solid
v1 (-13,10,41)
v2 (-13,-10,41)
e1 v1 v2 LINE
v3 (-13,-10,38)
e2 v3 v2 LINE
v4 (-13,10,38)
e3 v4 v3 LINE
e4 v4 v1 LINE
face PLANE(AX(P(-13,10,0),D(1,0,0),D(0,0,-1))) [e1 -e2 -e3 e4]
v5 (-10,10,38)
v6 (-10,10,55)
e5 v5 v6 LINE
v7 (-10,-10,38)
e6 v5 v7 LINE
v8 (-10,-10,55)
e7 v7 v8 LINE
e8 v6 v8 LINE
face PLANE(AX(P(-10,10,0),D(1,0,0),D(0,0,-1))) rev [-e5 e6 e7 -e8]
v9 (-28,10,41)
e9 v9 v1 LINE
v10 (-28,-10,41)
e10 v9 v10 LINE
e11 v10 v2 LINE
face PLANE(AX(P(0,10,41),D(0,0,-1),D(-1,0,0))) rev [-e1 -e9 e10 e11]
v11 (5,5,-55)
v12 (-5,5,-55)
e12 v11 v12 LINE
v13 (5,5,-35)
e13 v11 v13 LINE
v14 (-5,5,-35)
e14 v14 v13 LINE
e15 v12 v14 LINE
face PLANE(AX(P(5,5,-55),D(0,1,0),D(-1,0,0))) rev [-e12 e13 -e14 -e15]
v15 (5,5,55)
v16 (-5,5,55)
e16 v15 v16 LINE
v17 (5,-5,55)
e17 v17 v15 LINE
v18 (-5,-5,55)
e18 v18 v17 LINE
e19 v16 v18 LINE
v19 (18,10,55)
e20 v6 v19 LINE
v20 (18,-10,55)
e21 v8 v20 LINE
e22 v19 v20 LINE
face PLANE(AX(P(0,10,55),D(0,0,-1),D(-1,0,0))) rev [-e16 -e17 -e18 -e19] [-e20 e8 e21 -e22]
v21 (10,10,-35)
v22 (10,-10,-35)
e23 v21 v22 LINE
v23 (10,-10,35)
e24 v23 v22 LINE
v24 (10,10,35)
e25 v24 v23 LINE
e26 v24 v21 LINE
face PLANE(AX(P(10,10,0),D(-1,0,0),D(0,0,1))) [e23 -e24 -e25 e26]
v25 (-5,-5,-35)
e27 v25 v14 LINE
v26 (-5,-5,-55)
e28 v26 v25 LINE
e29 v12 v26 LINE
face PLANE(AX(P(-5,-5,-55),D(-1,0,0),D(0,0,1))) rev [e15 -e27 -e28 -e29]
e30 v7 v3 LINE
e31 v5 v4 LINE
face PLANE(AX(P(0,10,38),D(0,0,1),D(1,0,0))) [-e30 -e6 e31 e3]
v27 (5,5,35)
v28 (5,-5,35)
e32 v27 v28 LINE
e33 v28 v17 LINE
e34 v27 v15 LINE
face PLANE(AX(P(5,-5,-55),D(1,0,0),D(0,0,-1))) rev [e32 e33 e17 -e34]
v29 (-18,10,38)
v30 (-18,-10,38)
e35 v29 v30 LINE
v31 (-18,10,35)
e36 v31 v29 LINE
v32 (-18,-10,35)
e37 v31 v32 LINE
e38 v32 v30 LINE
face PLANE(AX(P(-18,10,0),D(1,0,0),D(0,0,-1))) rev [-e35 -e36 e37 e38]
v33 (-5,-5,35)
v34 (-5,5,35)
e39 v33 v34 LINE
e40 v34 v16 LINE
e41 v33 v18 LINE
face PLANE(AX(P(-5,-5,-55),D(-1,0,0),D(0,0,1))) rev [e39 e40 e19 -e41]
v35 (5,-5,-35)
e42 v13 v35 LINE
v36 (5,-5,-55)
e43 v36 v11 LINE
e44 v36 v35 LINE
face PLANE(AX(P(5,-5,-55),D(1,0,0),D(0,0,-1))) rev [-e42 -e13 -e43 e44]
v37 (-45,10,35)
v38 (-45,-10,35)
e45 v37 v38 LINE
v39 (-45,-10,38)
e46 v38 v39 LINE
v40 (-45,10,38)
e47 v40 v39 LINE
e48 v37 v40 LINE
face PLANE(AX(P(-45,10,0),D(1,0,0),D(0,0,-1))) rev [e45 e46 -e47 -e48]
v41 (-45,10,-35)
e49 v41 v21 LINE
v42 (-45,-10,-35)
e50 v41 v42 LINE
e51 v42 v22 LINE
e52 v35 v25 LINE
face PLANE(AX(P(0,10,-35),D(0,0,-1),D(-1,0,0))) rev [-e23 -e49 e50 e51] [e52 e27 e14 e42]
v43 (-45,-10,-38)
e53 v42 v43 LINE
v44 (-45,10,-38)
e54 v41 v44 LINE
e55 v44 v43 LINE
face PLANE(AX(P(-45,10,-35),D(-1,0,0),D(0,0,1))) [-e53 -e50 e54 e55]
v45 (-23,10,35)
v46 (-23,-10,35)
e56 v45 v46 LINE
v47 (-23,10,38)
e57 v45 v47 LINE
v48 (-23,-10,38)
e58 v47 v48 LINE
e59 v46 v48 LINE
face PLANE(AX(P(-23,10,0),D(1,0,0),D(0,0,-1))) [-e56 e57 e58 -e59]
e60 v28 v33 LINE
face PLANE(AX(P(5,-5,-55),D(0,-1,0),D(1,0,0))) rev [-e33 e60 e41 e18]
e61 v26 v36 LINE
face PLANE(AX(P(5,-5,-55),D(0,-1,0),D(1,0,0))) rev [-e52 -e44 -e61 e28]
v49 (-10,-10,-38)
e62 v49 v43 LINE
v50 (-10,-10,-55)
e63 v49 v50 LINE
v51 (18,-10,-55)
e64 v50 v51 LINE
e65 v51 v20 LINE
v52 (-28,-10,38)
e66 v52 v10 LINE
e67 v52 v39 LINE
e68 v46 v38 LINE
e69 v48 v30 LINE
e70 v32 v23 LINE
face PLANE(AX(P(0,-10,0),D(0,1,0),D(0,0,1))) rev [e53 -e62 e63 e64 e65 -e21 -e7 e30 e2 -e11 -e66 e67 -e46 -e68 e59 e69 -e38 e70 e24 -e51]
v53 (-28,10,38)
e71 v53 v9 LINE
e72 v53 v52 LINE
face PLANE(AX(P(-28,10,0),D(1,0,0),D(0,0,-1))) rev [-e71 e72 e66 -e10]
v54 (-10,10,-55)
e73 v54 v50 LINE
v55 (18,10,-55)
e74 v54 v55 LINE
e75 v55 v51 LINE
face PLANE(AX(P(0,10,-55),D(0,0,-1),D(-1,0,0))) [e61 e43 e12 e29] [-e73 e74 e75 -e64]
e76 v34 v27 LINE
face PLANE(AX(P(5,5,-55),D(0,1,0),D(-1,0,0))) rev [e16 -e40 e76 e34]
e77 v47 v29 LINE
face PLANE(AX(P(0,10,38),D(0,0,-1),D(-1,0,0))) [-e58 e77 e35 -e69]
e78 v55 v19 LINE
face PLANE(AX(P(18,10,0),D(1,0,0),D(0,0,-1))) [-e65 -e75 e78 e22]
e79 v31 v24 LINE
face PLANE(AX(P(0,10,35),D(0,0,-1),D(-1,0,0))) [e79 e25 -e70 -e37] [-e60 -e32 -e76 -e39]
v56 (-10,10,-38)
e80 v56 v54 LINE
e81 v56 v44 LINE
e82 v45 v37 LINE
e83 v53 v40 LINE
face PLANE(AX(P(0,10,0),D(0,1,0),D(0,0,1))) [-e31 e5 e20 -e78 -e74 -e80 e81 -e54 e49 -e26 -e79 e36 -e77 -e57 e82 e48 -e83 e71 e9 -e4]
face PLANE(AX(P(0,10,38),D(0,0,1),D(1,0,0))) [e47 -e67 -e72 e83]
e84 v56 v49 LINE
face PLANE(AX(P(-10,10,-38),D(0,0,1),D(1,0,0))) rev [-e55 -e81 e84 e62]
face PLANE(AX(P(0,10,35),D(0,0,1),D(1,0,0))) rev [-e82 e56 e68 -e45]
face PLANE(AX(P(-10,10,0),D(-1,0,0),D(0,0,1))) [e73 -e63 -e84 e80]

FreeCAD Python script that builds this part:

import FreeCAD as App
import Part
import Sketcher

doc = App.newDocument("Part")
body = doc.addObject("PartDesign::Body", "Body")

# Sketch on XZ plane
sketch1 = doc.addObject("Sketcher::SketchObject", "Sketch")
body.addObject(sketch1)
sketch1.AttachmentSupport = (doc.XZ_Plane, [""])
sketch1.MapMode = "FlatFace"
sketch1.addGeometry(Part.LineSegment(App.Vector(18, 55, 0), App.Vector(18, -55, 0)), False)
sketch1.addGeometry(Part.LineSegment(App.Vector(18, -55, 0), App.Vector(-10, -55, 0)), False)
sketch1.addGeometry(Part.LineSegment(App.Vector(-10, -55, 0), App.Vector(-10, -35, 0)), False)
sketch1.addGeometry(Part.LineSegment(App.Vector(-10, -35, 0), App.Vector(10, -35, 0)), False)
sketch1.addGeometry(Part.LineSegment(App.Vector(10, -35, 0), App.Vector(10, 35, 0)), False)
sketch1.addGeometry(Part.LineSegment(App.Vector(10, 35, 0), App.Vector(-10, 35, 0)), False)
sketch1.addGeometry(Part.LineSegment(App.Vector(-10, 35, 0), App.Vector(-10, 55, 0)), False)
sketch1.addGeometry(Part.LineSegment(App.Vector(-10, 55, 0), App.Vector(18, 55, 0)), False)
sketch1.addConstraint(Sketcher.Constraint("Coincident", 0, 2, 1, 1))
sketch1.addConstraint(Sketcher.Constraint("Coincident", 1, 2, 2, 1))
sketch1.addConstraint(Sketcher.Constraint("Coincident", 2, 2, 3, 1))
sketch1.addConstraint(Sketcher.Constraint("Coincident", 3, 2, 4, 1))
sketch1.addConstraint(Sketcher.Constraint("Coincident", 4, 2, 5, 1))
sketch1.addConstraint(Sketcher.Constraint("Coincident", 5, 2, 6, 1))
sketch1.addConstraint(Sketcher.Constraint("Coincident", 6, 2, 7, 1))
sketch1.addConstraint(Sketcher.Constraint("Coincident", 7, 2, 0, 1))
sketch1.addConstraint(Sketcher.Constraint("Vertical", 0))
sketch1.addConstraint(Sketcher.Constraint("Horizontal", 1))
sketch1.addConstraint(Sketcher.Constraint("Vertical", 2))
sketch1.addConstraint(Sketcher.Constraint("Horizontal", 3))
sketch1.addConstraint(Sketcher.Constraint("Vertical", 4))
sketch1.addConstraint(Sketcher.Constraint("Horizontal", 5))
sketch1.addConstraint(Sketcher.Constraint("Vertical", 6))
sketch1.addConstraint(Sketcher.Constraint("Horizontal", 7))
sketch1.addConstraint(Sketcher.Constraint("Symmetric", 2, 2, 4, 2, -1, 1))
sketch1.addConstraint(Sketcher.Constraint("Symmetric", 1, 2, 6, 2, -1))
sketch1.addConstraint(Sketcher.Constraint("Equal", 5, 2))
sketch1.addConstraint(Sketcher.Constraint("DistanceX", 1, 2, 1, 1, 28.0))
sketch1.addConstraint(Sketcher.Constraint("DistanceX", 3, 1, 3, 2, 20.0))
sketch1.addConstraint(Sketcher.Constraint("DistanceY", 0, 2, 0, 1, 110.0))
pad1 = doc.addObject("PartDesign::Pad", "Pad")
body.addObject(pad1)
pad1.Profile = sketch1
pad1.Length = 20
pad1.Midplane = True

# Sketch on XY plane
sketch2 = doc.addObject("Sketcher::SketchObject", "Sketch001")
body.addObject(sketch2)
sketch2.AttachmentSupport = (doc.XY_Plane, [""])
sketch2.MapMode = "FlatFace"
sketch2.AttachmentOffset = App.Placement(App.Vector(0, 0, 55), App.Rotation())
sketch2.addGeometry(Part.LineSegment(App.Vector(-5, 5, 0), App.Vector(-5, -5, 0)), False)
sketch2.addGeometry(Part.LineSegment(App.Vector(-5, -5, 0), App.Vector(5, -5, 0)), False)
sketch2.addGeometry(Part.LineSegment(App.Vector(5, -5, 0), App.Vector(5, 5, 0)), False)
sketch2.addGeometry(Part.LineSegment(App.Vector(5, 5, 0), App.Vector(-5, 5, 0)), False)
sketch2.addConstraint(Sketcher.Constraint("Coincident", 0, 2, 1, 1))
sketch2.addConstraint(Sketcher.Constraint("Coincident", 1, 2, 2, 1))
sketch2.addConstraint(Sketcher.Constraint("Coincident", 2, 2, 3, 1))
sketch2.addConstraint(Sketcher.Constraint("Coincident", 3, 2, 0, 1))
sketch2.addConstraint(Sketcher.Constraint("Vertical", 0))
sketch2.addConstraint(Sketcher.Constraint("Horizontal", 1))
sketch2.addConstraint(Sketcher.Constraint("Vertical", 2))
sketch2.addConstraint(Sketcher.Constraint("Horizontal", 3))
sketch2.addConstraint(Sketcher.Constraint("Symmetric", 0, 2, 2, 2, -1, 1))
sketch2.addConstraint(Sketcher.Constraint("Equal", 3, 0))
sketch2.addConstraint(Sketcher.Constraint("DistanceX", 1, 1, 1, 2, 10.0))
pocket1 = doc.addObject("PartDesign::Pocket", "Pocket")
body.addObject(pocket1)
pocket1.Profile = sketch2
pocket1.Type = "ThroughAll"

# Sketch on XZ plane
sketch3 = doc.addObject("Sketcher::SketchObject", "Sketch002")
body.addObject(sketch3)
sketch3.AttachmentSupport = (doc.XZ_Plane, [""])
sketch3.MapMode = "FlatFace"
sketch3.addGeometry(Part.LineSegment(App.Vector(-10, 38, 0), App.Vector(-10, 35, 0)), False)
sketch3.addGeometry(Part.LineSegment(App.Vector(-10, 35, 0), App.Vector(-18, 35, 0)), False)
sketch3.addGeometry(Part.LineSegment(App.Vector(-18, 35, 0), App.Vector(-18, 38, 0)), False)
sketch3.addGeometry(Part.LineSegment(App.Vector(-18, 38, 0), App.Vector(-23, 38, 0)), False)
sketch3.addGeometry(Part.LineSegment(App.Vector(-23, 38, 0), App.Vector(-23, 35, 0)), False)
sketch3.addGeometry(Part.LineSegment(App.Vector(-23, 35, 0), App.Vector(-45, 35, 0)), False)
sketch3.addGeometry(Part.LineSegment(App.Vector(-45, 35, 0), App.Vector(-45, 38, 0)), False)
sketch3.addGeometry(Part.LineSegment(App.Vector(-45, 38, 0), App.Vector(-28, 38, 0)), False)
sketch3.addGeometry(Part.LineSegment(App.Vector(-28, 38, 0), App.Vector(-28, 41, 0)), False)
sketch3.addGeometry(Part.LineSegment(App.Vector(-28, 41, 0), App.Vector(-13, 41, 0)), False)
sketch3.addGeometry(Part.LineSegment(App.Vector(-13, 41, 0), App.Vector(-13, 38, 0)), False)
sketch3.addGeometry(Part.LineSegment(App.Vector(-13, 38, 0), App.Vector(-10, 38, 0)), False)
sketch3.addGeometry(Part.LineSegment(App.Vector(-45, -38, 0), App.Vector(-45, -35, 0)), False)
sketch3.addGeometry(Part.LineSegment(App.Vector(-45, -35, 0), App.Vector(-10, -35, 0)), False)
sketch3.addGeometry(Part.LineSegment(App.Vector(-10, -35, 0), App.Vector(-10, -38, 0)), False)
sketch3.addGeometry(Part.LineSegment(App.Vector(-10, -38, 0), App.Vector(-45, -38, 0)), False)
sketch3.addConstraint(Sketcher.Constraint("Coincident", 0, 2, 1, 1))
sketch3.addConstraint(Sketcher.Constraint("Coincident", 1, 2, 2, 1))
sketch3.addConstraint(Sketcher.Constraint("Coincident", 2, 2, 3, 1))
sketch3.addConstraint(Sketcher.Constraint("Coincident", 3, 2, 4, 1))
sketch3.addConstraint(Sketcher.Constraint("Coincident", 4, 2, 5, 1))
sketch3.addConstraint(Sketcher.Constraint("Coincident", 5, 2, 6, 1))
sketch3.addConstraint(Sketcher.Constraint("Coincident", 6, 2, 7, 1))
sketch3.addConstraint(Sketcher.Constraint("Coincident", 7, 2, 8, 1))
sketch3.addConstraint(Sketcher.Constraint("Coincident", 8, 2, 9, 1))
sketch3.addConstraint(Sketcher.Constraint("Coincident", 9, 2, 10, 1))
sketch3.addConstraint(Sketcher.Constraint("Coincident", 10, 2, 11, 1))
sketch3.addConstraint(Sketcher.Constraint("Coincident", 11, 2, 0, 1))
sketch3.addConstraint(Sketcher.Constraint("Coincident", 12, 2, 13, 1))
sketch3.addConstraint(Sketcher.Constraint("Coincident", 13, 2, 14, 1))
sketch3.addConstraint(Sketcher.Constraint("Coincident", 14, 2, 15, 1))
sketch3.addConstraint(Sketcher.Constraint("Coincident", 15, 2, 12, 1))
sketch3.addConstraint(Sketcher.Constraint("Vertical", 0))
sketch3.addConstraint(Sketcher.Constraint("Horizontal", 1))
sketch3.addConstraint(Sketcher.Constraint("Vertical", 2))
sketch3.addConstraint(Sketcher.Constraint("Horizontal", 3))
sketch3.addConstraint(Sketcher.Constraint("Vertical", 4))
sketch3.addConstraint(Sketcher.Constraint("Horizontal", 5))
sketch3.addConstraint(Sketcher.Constraint("Vertical", 6))
sketch3.addConstraint(Sketcher.Constraint("Horizontal", 7))
sketch3.addConstraint(Sketcher.Constraint("Vertical", 8))
sketch3.addConstraint(Sketcher.Constraint("Horizontal", 9))
sketch3.addConstraint(Sketcher.Constraint("Vertical", 10))
sketch3.addConstraint(Sketcher.Constraint("Horizontal", 11))
sketch3.addConstraint(Sketcher.Constraint("Vertical", 12))
sketch3.addConstraint(Sketcher.Constraint("Horizontal", 13))
sketch3.addConstraint(Sketcher.Constraint("Vertical", 14))
sketch3.addConstraint(Sketcher.Constraint("Horizontal", 15))
sketch3.addConstraint(Sketcher.Constraint("Symmetric", 5, 2, 12, 2, -1))
sketch3.addConstraint(Sketcher.Constraint("Symmetric", 0, 2, 13, 2, -1))
sketch3.addConstraint(Sketcher.Constraint("Horizontal", 3, 2, 6, 2))
sketch3.addConstraint(Sketcher.Constraint("Horizontal", 7, 2, 10, 2))
sketch3.addConstraint(Sketcher.Constraint("Equal", 11, 0))
sketch3.addConstraint(Sketcher.Constraint("Equal", 6, 8))
sketch3.addConstraint(Sketcher.Constraint("Equal", 10, 12))
sketch3.addConstraint(Sketcher.Constraint("DistanceX", 1, 2, 1, 1, 8.0))
sketch3.addConstraint(Sketcher.Constraint("DistanceX", 3, 2, 3, 1, 5.0))
sketch3.addConstraint(Sketcher.Constraint("DistanceX", 5, 2, 5, 1, 22.0))
sketch3.addConstraint(Sketcher.Constraint("DistanceX", 7, 1, 7, 2, 17.0))
sketch3.addConstraint(Sketcher.Constraint("DistanceX", 9, 1, 9, 2, 15.0))
sketch3.addConstraint(Sketcher.Constraint("DistanceX", 0, 2, -1, 1, 10.0))
sketch3.addConstraint(Sketcher.Constraint("DistanceY", -1, 1, 0, 2, 35.0))
pad2 = doc.addObject("PartDesign::Pad", "Pad001")
body.addObject(pad2)
pad2.Profile = sketch3
pad2.Length = 20
pad2.Midplane = True

doc.recompute()
